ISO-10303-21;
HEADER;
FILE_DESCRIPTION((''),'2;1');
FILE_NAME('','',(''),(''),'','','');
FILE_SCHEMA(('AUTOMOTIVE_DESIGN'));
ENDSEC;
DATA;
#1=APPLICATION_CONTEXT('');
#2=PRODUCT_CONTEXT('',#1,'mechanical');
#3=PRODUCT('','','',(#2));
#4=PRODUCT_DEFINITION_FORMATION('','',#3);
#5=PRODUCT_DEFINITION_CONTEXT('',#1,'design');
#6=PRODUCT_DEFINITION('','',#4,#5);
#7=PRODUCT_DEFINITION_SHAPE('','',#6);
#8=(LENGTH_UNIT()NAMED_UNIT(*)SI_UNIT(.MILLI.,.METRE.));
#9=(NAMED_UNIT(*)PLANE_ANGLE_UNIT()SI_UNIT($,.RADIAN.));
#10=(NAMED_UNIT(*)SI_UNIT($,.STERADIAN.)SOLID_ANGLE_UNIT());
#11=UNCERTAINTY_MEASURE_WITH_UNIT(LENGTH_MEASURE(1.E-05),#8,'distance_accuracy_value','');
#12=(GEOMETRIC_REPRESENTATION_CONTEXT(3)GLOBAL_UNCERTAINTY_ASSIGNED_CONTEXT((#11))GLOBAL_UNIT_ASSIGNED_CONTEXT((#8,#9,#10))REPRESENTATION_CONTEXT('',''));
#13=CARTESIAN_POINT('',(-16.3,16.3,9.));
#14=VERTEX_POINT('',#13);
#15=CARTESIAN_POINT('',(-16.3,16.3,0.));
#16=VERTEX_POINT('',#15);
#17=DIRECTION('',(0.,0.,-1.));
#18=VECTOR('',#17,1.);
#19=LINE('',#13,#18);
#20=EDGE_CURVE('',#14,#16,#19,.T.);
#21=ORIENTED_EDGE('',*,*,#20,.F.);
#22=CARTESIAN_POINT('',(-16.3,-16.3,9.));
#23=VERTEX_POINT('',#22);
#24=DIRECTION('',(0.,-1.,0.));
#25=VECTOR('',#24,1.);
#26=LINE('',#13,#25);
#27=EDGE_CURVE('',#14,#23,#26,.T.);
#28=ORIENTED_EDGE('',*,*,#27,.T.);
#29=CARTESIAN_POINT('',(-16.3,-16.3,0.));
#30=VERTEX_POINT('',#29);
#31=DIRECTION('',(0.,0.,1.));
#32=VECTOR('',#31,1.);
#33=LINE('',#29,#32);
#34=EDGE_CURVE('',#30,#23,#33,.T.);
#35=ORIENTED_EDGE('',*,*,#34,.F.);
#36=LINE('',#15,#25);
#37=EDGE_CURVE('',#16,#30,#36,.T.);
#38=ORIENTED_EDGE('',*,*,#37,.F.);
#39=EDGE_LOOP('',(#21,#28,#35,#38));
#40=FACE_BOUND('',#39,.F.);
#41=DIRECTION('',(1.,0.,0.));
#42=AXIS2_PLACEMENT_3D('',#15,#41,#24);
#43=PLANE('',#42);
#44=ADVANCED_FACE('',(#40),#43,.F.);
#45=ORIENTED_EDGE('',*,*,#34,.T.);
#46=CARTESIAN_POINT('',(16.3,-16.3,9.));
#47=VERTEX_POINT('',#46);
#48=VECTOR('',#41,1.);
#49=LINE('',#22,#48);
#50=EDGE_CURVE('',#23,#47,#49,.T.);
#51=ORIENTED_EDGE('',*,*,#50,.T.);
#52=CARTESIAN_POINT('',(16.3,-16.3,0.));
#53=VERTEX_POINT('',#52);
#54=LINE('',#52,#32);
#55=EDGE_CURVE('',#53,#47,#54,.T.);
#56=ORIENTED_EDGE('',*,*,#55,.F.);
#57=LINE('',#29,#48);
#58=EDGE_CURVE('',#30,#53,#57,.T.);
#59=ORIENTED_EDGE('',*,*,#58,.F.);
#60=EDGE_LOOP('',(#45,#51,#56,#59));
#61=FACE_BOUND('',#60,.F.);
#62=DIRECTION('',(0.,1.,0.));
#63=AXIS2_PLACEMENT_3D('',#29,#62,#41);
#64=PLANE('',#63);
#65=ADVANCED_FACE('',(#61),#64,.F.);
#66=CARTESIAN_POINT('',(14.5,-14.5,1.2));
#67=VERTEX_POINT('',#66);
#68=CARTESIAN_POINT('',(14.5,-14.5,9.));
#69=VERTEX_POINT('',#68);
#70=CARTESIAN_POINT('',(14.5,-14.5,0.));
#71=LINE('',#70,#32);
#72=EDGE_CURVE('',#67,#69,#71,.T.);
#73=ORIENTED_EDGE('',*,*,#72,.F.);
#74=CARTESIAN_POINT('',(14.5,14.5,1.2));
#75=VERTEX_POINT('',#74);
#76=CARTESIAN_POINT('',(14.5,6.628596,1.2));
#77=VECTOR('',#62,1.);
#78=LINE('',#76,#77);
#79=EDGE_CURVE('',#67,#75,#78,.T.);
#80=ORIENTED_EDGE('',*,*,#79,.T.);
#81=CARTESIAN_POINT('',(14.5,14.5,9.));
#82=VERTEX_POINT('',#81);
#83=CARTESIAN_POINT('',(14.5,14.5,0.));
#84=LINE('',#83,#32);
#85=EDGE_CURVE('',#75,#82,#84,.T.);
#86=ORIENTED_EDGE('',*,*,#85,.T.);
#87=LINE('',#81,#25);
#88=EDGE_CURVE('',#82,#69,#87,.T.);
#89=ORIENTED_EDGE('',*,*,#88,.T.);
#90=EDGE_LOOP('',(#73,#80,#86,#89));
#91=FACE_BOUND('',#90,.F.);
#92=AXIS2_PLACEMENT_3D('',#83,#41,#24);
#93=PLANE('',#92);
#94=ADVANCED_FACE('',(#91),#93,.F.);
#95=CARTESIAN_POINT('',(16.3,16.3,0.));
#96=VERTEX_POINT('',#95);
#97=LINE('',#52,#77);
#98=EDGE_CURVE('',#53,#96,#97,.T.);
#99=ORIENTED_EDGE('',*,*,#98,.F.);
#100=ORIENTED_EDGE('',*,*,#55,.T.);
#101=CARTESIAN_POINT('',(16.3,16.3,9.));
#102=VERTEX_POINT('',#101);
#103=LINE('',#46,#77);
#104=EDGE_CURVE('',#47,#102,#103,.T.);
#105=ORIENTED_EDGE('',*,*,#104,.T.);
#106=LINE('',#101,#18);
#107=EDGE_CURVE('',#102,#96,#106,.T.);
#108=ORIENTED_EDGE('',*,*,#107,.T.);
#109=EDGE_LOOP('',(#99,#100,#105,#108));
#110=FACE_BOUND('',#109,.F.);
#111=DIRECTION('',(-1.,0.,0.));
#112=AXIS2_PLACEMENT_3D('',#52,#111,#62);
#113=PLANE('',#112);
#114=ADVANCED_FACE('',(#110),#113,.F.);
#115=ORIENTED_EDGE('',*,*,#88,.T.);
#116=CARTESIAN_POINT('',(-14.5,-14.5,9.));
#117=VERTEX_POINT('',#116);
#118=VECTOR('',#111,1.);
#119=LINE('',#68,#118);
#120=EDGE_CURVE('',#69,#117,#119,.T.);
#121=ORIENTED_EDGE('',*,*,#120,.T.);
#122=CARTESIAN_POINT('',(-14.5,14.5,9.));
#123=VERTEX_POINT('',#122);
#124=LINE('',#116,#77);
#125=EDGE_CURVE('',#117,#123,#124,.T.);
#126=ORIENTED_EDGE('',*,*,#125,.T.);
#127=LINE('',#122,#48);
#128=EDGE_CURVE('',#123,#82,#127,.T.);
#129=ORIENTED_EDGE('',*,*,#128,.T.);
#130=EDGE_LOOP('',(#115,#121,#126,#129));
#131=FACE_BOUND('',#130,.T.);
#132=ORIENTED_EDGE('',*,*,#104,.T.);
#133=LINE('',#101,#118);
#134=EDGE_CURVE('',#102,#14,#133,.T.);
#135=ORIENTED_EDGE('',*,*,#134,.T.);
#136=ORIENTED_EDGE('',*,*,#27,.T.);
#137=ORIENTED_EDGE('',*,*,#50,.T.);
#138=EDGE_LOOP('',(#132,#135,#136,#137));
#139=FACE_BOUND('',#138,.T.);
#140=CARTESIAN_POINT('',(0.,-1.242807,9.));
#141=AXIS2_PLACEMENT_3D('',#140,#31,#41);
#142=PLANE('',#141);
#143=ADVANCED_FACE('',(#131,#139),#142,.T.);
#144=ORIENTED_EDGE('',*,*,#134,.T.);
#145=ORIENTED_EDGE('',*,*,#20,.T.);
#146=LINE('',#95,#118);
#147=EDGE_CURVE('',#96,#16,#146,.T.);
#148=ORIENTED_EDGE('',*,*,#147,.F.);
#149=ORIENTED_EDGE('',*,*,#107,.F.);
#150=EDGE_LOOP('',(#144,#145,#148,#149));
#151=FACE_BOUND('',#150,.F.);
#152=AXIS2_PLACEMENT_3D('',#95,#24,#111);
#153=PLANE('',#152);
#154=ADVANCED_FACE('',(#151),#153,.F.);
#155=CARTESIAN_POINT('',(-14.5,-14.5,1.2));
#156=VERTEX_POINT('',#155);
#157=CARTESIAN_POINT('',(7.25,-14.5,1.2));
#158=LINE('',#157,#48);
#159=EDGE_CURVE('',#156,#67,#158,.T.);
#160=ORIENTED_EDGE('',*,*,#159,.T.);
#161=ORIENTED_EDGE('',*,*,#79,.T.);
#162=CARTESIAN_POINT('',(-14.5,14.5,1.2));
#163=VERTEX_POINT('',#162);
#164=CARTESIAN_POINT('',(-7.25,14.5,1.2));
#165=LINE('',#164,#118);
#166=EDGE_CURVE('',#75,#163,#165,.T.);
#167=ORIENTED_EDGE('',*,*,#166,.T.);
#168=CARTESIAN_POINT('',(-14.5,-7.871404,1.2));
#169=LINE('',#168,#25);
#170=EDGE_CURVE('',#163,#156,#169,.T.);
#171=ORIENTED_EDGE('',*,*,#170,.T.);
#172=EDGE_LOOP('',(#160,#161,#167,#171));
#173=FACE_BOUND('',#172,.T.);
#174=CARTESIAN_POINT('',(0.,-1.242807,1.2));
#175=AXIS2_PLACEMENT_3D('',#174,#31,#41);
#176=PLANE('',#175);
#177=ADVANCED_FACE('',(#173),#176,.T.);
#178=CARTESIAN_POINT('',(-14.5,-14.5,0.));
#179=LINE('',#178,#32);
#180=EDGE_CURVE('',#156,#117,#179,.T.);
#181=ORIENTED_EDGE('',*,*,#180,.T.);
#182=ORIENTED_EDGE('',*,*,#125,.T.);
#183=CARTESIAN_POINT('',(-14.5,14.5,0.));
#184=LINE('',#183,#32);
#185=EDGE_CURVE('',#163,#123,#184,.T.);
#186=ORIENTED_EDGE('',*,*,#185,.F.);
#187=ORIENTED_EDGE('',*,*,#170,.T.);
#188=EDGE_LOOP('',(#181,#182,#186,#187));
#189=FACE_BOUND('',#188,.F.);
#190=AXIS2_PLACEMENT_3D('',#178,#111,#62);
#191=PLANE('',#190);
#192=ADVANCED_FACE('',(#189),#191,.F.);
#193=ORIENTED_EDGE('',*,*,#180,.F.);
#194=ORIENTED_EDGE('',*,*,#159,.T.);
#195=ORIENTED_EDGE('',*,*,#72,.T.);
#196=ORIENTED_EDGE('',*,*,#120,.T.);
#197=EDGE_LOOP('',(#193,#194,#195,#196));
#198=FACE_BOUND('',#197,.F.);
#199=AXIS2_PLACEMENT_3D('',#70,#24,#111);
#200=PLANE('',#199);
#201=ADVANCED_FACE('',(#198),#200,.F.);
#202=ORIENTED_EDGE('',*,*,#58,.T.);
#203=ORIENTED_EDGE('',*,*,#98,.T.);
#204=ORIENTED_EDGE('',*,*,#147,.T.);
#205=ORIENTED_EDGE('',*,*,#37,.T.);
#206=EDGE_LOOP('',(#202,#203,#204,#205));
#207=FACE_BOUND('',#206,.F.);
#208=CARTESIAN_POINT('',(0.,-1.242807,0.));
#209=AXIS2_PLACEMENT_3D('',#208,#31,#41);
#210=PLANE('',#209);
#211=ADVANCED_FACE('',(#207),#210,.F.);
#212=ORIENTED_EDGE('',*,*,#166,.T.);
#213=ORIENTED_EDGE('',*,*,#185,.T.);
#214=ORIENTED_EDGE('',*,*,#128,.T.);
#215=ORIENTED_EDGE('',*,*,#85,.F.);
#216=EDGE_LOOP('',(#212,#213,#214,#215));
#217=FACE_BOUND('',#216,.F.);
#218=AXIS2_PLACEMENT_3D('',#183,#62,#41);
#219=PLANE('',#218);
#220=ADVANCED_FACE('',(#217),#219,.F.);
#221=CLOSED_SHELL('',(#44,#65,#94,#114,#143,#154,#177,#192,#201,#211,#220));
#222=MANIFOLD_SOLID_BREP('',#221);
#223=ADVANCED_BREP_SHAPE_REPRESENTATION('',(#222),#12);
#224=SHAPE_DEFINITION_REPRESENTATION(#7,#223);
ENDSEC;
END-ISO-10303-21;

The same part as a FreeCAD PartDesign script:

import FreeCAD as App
import Part
import Sketcher

V = App.Vector
Q = App.Units.Quantity

doc = App.newDocument("Part")
body = doc.addObject("PartDesign::Body", "Body")

# Sketch on XY plane
sketch1 = body.newObject("Sketcher::SketchObject", "Sketch")
sketch1.AttachmentSupport = (doc.getObject("XY_Plane"), [""])
sketch1.MapMode = "FlatFace"
sketch1.addGeometry(Part.LineSegment(V(-16.3, 16.3, 0), V(-16.3, -16.3, 0)), False)
sketch1.addGeometry(Part.LineSegment(V(-16.3, -16.3, 0), V(16.3, -16.3, 0)), False)
sketch1.addGeometry(Part.LineSegment(V(16.3, -16.3, 0), V(16.3, 16.3, 0)), False)
sketch1.addGeometry(Part.LineSegment(V(16.3, 16.3, 0), V(-16.3, 16.3, 0)), False)
sketch1.addConstraint(Sketcher.Constraint("Coincident", 0, 2, 1, 1))
sketch1.addConstraint(Sketcher.Constraint("Coincident", 1, 2, 2, 1))
sketch1.addConstraint(Sketcher.Constraint("Coincident", 2, 2, 3, 1))
sketch1.addConstraint(Sketcher.Constraint("Coincident", 3, 2, 0, 1))
sketch1.addConstraint(Sketcher.Constraint("Vertical", 0))
sketch1.addConstraint(Sketcher.Constraint("Horizontal", 1))
sketch1.addConstraint(Sketcher.Constraint("Vertical", 2))
sketch1.addConstraint(Sketcher.Constraint("Horizontal", 3))
sketch1.addConstraint(Sketcher.Constraint("Symmetric", 0, 2, 2, 2, -1, 1))
sketch1.addConstraint(Sketcher.Constraint("Equal", 3, 0))
sketch1.addConstraint(Sketcher.Constraint("DistanceX", 1, 1, 1, 2, Q("32.6 mm")))
pad1 = body.newObject("PartDesign::Pad", "Pad")
pad1.Profile = sketch1
pad1.Length = 1.2

# Sketch on XY plane
sketch2 = body.newObject("Sketcher::SketchObject", "Sketch001")
sketch2.AttachmentSupport = (doc.getObject("XY_Plane"), [""])
sketch2.MapMode = "FlatFace"
sketch2.addGeometry(Part.LineSegment(V(-16.3, 16.3, 0), V(-16.3, -16.3, 0)), False)
sketch2.addGeometry(Part.LineSegment(V(-16.3, -16.3, 0), V(16.3, -16.3, 0)), False)
sketch2.addGeometry(Part.LineSegment(V(16.3, -16.3, 0), V(16.3, 16.3, 0)), False)
sketch2.addGeometry(Part.LineSegment(V(16.3, 16.3, 0), V(-16.3, 16.3, 0)), False)
sketch2.addGeometry(Part.LineSegment(V(14.5, 14.5, 0), V(14.5, -14.5, 0)), False)
sketch2.addGeometry(Part.LineSegment(V(14.5, -14.5, 0), V(-14.5, -14.5, 0)), False)
sketch2.addGeometry(Part.LineSegment(V(-14.5, -14.5, 0), V(-14.5, 14.5, 0)), False)
sketch2.addGeometry(Part.LineSegment(V(-14.5, 14.5, 0), V(14.5, 14.5, 0)), False)
sketch2.addConstraint(Sketcher.Constraint("Coincident", 0, 2, 1, 1))
sketch2.addConstraint(Sketcher.Constraint("Coincident", 1, 2, 2, 1))
sketch2.addConstraint(Sketcher.Constraint("Coincident", 2, 2, 3, 1))
sketch2.addConstraint(Sketcher.Constraint("Coincident", 3, 2, 0, 1))
sketch2.addConstraint(Sketcher.Constraint("Coincident", 4, 2, 5, 1))
sketch2.addConstraint(Sketcher.Constraint("Coincident", 5, 2, 6, 1))
sketch2.addConstraint(Sketcher.Constraint("Coincident", 6, 2, 7, 1))
sketch2.addConstraint(Sketcher.Constraint("Coincident", 7, 2, 4, 1))
sketch2.addConstraint(Sketcher.Constraint("Vertical", 0))
sketch2.addConstraint(Sketcher.Constraint("Horizontal", 1))
sketch2.addConstraint(Sketcher.Constraint("Vertical", 2))
sketch2.addConstraint(Sketcher.Constraint("Horizontal", 3))
sketch2.addConstraint(Sketcher.Constraint("Vertical", 4))
sketch2.addConstraint(Sketcher.Constraint("Horizontal", 5))
sketch2.addConstraint(Sketcher.Constraint("Vertical", 6))
sketch2.addConstraint(Sketcher.Constraint("Horizontal", 7))
sketch2.addConstraint(Sketcher.Constraint("Symmetric", 0, 2, 2, 2, -1, 1))
sketch2.addConstraint(Sketcher.Constraint("Symmetric", 4, 2, 6, 2, -1, 1))
sketch2.addConstraint(Sketcher.Constraint("Equal", 3, 0))
sketch2.addConstraint(Sketcher.Constraint("Equal", 7, 4))
sketch2.addConstraint(Sketcher.Constraint("DistanceX", 5, 2, 5, 1, Q("29 mm")))
sketch2.addConstraint(Sketcher.Constraint("DistanceX", 1, 1, 1, 2, Q("32.6 mm")))
pad2 = body.newObject("PartDesign::Pad", "Pad001")
pad2.Profile = sketch2
pad2.Length = 9

doc.recompute()
